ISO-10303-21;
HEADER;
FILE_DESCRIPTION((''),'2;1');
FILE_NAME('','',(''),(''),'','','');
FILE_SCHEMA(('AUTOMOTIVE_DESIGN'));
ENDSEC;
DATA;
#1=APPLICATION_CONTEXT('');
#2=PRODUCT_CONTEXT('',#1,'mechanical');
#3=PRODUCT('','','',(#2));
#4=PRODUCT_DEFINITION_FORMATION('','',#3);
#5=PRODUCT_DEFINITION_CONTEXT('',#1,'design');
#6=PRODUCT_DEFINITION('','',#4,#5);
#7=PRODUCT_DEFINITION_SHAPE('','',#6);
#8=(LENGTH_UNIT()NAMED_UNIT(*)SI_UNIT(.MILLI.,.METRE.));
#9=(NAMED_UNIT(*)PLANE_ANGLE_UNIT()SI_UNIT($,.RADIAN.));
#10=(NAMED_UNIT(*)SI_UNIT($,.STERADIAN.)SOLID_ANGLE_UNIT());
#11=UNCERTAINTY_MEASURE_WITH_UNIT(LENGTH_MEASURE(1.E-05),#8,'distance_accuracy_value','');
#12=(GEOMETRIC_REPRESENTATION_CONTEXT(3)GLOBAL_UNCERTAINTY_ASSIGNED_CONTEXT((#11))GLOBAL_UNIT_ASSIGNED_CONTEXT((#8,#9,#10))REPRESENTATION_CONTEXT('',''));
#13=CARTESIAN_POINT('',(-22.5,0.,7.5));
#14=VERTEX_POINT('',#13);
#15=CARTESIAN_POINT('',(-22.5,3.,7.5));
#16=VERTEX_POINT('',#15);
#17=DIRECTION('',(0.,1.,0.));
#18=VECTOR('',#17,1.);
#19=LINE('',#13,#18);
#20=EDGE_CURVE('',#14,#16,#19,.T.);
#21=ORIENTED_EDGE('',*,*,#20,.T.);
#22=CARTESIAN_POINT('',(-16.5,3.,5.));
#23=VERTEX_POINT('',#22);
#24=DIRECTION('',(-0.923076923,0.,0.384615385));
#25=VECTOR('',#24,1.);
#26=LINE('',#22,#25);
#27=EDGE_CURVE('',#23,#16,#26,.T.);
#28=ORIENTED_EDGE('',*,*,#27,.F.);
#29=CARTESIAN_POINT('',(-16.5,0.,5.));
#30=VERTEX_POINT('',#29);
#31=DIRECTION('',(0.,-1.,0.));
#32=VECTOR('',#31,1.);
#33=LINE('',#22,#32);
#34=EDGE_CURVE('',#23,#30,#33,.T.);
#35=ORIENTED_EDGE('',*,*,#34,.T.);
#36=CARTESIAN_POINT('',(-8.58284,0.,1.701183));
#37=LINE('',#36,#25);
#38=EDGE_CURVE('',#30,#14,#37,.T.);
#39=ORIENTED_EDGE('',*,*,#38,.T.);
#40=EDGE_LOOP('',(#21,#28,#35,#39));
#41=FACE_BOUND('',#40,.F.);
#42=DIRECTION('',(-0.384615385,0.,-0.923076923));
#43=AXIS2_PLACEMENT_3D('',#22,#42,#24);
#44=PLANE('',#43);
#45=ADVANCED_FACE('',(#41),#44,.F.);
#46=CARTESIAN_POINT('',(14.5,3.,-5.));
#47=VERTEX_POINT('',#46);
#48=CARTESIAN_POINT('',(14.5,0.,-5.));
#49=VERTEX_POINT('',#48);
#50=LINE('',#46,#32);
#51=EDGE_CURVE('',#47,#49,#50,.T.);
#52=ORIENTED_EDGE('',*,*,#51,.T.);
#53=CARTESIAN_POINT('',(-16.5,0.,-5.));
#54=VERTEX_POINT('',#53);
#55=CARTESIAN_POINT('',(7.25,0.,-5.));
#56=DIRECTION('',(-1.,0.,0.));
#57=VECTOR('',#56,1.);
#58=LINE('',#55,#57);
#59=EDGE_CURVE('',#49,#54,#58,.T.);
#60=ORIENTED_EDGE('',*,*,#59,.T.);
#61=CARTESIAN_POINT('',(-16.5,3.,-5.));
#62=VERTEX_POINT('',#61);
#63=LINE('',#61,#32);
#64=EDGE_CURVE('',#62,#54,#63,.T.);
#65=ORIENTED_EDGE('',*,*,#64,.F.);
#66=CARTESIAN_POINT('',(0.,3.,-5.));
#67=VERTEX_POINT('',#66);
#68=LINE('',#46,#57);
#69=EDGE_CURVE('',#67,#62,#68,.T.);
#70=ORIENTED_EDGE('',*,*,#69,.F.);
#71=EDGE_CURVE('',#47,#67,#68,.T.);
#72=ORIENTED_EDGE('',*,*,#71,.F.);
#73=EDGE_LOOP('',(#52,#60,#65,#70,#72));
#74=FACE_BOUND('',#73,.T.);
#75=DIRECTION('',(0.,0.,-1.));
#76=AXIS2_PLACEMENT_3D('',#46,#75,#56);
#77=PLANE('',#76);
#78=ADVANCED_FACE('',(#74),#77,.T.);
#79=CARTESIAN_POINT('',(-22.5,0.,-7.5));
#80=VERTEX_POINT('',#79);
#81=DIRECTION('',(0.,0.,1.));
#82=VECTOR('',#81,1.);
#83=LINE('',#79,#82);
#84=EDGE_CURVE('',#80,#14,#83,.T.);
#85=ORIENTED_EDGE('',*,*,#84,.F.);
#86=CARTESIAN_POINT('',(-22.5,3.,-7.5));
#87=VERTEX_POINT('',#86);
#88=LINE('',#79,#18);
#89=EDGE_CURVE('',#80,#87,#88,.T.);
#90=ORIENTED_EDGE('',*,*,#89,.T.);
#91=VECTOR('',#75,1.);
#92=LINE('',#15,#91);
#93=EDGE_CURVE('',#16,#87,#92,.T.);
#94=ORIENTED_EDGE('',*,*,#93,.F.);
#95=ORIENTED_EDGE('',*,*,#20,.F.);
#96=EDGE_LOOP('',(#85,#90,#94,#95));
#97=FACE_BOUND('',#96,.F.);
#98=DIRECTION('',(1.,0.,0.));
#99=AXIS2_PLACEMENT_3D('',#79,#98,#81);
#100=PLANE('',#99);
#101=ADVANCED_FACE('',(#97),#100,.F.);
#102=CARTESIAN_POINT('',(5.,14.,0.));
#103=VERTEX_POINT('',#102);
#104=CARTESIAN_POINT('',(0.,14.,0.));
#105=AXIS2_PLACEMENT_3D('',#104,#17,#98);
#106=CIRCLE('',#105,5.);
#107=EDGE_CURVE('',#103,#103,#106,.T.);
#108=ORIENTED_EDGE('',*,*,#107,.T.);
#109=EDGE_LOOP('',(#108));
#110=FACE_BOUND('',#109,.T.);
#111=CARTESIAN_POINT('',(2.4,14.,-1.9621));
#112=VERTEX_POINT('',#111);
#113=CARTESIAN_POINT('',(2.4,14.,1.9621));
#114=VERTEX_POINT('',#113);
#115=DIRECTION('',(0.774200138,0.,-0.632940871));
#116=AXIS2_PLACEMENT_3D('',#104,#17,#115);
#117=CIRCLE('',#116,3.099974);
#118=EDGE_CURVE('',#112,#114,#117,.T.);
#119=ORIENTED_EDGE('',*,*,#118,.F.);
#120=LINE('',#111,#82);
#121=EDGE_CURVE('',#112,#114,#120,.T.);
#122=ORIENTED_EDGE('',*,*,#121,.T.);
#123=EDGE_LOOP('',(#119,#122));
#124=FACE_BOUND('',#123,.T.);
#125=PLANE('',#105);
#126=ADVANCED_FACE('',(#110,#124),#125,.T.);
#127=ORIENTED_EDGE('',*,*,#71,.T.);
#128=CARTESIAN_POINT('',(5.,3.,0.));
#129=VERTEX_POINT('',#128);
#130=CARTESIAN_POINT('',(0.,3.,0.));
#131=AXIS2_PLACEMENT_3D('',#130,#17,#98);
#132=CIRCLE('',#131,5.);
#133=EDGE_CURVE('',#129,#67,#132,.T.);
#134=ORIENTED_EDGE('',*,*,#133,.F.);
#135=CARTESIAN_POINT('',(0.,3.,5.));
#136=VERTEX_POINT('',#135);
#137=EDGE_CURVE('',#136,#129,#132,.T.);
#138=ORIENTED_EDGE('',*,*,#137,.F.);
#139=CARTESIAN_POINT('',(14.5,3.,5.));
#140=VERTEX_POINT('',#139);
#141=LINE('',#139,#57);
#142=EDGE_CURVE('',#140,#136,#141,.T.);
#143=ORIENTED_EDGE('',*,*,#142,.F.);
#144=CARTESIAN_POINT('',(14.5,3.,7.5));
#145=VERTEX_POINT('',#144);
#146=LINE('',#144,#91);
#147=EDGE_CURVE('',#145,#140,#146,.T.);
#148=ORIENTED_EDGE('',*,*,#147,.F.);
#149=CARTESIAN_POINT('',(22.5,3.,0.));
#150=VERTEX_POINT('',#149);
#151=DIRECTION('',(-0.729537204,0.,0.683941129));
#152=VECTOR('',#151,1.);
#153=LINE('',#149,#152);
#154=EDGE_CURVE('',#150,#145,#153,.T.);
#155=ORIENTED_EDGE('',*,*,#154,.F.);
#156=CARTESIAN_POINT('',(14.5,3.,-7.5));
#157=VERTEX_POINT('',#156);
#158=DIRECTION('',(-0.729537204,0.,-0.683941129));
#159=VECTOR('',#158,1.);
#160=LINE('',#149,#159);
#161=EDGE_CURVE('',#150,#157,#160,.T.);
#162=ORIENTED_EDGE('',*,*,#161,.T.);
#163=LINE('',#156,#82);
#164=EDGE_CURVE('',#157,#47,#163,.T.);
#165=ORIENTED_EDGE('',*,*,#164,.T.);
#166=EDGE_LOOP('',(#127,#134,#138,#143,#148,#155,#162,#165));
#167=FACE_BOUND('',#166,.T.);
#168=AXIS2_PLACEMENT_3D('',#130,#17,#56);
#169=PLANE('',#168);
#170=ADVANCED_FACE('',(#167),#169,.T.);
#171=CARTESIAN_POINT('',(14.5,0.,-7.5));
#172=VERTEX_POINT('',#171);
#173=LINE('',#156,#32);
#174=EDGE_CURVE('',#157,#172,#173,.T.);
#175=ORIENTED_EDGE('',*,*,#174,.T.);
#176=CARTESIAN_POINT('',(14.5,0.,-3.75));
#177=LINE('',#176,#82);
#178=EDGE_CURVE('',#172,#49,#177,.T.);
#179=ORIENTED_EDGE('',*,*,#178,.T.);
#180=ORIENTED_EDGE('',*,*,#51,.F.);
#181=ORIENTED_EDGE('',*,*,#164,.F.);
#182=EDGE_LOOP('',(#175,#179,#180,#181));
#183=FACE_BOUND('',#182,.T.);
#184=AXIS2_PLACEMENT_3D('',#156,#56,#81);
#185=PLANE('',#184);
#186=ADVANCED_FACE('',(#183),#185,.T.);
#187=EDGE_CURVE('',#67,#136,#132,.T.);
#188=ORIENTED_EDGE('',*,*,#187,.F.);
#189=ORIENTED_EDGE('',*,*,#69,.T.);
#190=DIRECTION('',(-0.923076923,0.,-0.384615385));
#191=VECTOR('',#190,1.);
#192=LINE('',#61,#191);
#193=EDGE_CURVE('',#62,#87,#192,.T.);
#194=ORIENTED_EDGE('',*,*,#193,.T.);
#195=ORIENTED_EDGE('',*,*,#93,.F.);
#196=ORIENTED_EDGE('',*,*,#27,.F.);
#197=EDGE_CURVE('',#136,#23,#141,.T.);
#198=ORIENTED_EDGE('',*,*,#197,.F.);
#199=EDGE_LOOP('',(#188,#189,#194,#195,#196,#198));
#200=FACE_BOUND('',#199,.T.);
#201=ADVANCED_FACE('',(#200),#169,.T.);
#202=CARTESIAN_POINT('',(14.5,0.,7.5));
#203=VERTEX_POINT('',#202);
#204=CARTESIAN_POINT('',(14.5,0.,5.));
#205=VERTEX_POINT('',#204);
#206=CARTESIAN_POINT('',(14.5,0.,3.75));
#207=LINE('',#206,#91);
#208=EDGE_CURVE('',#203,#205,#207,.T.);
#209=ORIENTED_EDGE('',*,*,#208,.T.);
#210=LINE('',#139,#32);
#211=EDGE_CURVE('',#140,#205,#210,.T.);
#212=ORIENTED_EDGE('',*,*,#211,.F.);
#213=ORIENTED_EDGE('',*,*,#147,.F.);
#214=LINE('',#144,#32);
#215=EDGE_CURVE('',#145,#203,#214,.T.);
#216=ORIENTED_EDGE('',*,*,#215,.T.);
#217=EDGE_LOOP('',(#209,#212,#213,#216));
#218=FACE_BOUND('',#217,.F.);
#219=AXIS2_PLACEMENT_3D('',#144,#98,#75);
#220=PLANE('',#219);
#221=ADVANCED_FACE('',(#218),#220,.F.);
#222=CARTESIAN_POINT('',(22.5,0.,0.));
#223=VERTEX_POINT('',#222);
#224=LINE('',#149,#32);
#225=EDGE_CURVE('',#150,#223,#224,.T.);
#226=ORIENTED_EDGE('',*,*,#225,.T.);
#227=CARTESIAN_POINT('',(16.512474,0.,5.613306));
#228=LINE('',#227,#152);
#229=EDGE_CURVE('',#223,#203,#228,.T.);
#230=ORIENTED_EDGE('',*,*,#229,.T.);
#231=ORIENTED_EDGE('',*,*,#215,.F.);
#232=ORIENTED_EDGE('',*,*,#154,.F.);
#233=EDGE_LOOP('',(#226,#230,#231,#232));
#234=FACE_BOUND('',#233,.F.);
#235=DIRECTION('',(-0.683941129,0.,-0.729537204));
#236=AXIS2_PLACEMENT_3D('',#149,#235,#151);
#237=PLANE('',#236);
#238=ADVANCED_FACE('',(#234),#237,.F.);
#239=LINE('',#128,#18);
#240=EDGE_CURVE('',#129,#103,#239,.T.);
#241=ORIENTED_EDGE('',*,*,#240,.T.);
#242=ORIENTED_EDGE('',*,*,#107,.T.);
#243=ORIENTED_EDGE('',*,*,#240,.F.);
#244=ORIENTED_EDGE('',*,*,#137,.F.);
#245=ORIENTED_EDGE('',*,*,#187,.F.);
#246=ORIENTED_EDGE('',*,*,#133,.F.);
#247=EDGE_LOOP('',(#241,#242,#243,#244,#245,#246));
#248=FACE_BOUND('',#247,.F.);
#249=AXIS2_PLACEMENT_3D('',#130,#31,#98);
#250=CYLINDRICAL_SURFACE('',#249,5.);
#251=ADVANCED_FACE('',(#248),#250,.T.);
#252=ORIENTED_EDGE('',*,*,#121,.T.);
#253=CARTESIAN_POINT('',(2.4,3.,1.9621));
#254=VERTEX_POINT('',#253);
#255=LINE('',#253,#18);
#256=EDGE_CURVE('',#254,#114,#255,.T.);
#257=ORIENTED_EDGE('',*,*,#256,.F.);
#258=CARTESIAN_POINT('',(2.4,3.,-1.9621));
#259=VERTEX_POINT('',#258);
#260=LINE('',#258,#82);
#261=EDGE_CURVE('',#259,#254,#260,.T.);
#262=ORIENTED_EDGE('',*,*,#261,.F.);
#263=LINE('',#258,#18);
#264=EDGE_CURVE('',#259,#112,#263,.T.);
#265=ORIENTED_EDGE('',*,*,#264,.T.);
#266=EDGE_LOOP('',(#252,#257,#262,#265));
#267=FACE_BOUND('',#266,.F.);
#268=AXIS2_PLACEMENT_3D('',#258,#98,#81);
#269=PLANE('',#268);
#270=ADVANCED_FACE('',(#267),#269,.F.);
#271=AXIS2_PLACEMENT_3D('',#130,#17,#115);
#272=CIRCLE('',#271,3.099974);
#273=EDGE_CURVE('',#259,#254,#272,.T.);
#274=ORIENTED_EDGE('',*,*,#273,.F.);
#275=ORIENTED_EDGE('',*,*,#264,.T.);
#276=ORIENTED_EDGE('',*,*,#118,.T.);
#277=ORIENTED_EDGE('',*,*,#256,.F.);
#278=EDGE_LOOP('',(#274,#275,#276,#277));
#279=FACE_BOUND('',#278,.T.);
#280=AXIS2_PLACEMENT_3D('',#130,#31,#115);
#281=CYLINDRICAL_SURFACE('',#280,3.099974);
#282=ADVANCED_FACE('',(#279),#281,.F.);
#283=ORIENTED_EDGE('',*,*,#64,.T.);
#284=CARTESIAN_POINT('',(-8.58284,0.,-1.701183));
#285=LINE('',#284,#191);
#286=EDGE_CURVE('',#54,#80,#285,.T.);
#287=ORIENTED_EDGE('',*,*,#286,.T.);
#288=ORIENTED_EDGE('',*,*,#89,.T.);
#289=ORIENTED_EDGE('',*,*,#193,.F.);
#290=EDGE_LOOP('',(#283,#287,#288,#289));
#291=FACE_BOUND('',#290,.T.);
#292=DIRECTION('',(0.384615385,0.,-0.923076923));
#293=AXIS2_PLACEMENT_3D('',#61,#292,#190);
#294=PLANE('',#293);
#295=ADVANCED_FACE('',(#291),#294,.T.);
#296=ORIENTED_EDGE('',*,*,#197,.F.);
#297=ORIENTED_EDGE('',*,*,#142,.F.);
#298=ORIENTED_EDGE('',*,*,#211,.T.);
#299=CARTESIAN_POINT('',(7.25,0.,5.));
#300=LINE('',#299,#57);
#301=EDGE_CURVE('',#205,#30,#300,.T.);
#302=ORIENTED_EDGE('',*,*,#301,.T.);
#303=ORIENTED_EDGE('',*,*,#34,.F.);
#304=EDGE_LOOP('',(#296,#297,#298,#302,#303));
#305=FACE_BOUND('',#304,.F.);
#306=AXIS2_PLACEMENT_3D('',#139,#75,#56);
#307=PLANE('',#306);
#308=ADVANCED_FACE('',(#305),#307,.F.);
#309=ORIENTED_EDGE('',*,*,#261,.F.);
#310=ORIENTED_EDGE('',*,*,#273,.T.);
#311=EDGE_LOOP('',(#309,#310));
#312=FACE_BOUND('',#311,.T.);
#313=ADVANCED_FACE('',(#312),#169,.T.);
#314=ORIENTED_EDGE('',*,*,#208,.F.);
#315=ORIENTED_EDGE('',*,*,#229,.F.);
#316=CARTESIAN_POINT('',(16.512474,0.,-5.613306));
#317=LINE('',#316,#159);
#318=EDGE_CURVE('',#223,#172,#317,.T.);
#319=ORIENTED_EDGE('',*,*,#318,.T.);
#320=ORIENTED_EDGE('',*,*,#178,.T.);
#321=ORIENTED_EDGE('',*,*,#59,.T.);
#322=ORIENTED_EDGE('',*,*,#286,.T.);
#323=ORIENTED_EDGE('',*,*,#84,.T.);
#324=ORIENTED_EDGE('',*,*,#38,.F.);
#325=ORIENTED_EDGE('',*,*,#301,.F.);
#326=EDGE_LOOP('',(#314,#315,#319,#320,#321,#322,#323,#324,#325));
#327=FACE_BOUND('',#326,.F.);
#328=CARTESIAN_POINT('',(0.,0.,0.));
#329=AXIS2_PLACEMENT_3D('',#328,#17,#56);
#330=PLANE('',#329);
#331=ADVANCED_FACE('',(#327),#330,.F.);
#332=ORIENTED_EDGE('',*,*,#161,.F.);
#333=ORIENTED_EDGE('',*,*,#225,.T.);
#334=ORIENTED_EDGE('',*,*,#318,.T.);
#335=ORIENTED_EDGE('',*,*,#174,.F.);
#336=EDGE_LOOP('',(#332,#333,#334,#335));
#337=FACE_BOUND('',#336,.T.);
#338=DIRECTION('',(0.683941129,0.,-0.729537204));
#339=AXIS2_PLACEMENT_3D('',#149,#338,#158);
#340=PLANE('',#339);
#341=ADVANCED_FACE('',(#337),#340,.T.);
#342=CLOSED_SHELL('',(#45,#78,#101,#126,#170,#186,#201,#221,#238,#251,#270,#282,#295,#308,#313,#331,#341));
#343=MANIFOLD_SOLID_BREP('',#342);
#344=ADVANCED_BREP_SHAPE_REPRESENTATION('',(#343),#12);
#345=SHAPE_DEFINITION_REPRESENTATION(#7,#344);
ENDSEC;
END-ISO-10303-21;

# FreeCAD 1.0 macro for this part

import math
import FreeCAD as App
import Part
import Sketcher
from FreeCAD import Vector
Q = App.Units.Quantity

doc = App.newDocument("Part")
body = doc.addObject("PartDesign::Body", "Body")

# Sketch on XZ plane
sketch1 = body.newObject("Sketcher::SketchObject", "Sketch")
sketch1.AttachmentSupport = (doc.getObject("XZ_Plane"), [""])
sketch1.MapMode = "FlatFace"
sketch1.addGeometry(Part.LineSegment(Vector(-22.5, -7.5, 0), Vector(-22.5, 7.5, 0)), False)
sketch1.addGeometry(Part.LineSegment(Vector(-22.5, 7.5, 0), Vector(22.5, 7.5, 0)), False)
sketch1.addGeometry(Part.LineSegment(Vector(22.5, 7.5, 0), Vector(22.5, -7.5, 0)), False)
sketch1.addGeometry(Part.LineSegment(Vector(22.5, -7.5, 0), Vector(-22.5, -7.5, 0)), False)
sketch1.addConstraint(Sketcher.Constraint("Coincident", 0, 2, 1, 1))
sketch1.addConstraint(Sketcher.Constraint("Coincident", 1, 2, 2, 1))
sketch1.addConstraint(Sketcher.Constraint("Coincident", 2, 2, 3, 1))
sketch1.addConstraint(Sketcher.Constraint("Coincident", 3, 2, 0, 1))
sketch1.addConstraint(Sketcher.Constraint("Vertical", 0))
sketch1.addConstraint(Sketcher.Constraint("Horizontal", 1))
sketch1.addConstraint(Sketcher.Constraint("Vertical", 2))
sketch1.addConstraint(Sketcher.Constraint("Horizontal", 3))
sketch1.addConstraint(Sketcher.Constraint("Symmetric", 0, 2, 2, 2, -1, 1))
sketch1.addConstraint(Sketcher.Constraint("DistanceX", 1, 1, 1, 2, Q("45 mm")))
sketch1.addConstraint(Sketcher.Constraint("DistanceY", 0, 1, 0, 2, Q("15 mm")))
pad1 = body.newObject("PartDesign::Pad", "Pad")
pad1.Profile = sketch1
pad1.Length = 3
pad1.Reversed = True

# Sketch on XZ plane
sketch2 = body.newObject("Sketcher::SketchObject", "Sketch001")
sketch2.AttachmentSupport = (doc.getObject("XZ_Plane"), [""])
sketch2.MapMode = "FlatFace"
sketch2.AttachmentOffset = App.Placement(Vector(0, 0, -3), App.Rotation())
sketch2.addGeometry(Part.Circle(Vector(0, 0, 0), Vector(0, 0, 1), 5), False)
sketch2.addGeometry(Part.ArcOfCircle(Part.Circle(Vector(0, 0, 0), Vector(0, 0, 1), 3.099974), math.radians(39.267429), math.radians(320.732571)), False)
sketch2.addGeometry(Part.LineSegment(Vector(2.4, -1.9621, 0), Vector(2.4, 1.9621, 0)), False)
sketch2.addConstraint(Sketcher.Constraint("Coincident", 1, 1, 2, 2))
sketch2.addConstraint(Sketcher.Constraint("Coincident", 2, 1, 1, 2))
sketch2.addConstraint(Sketcher.Constraint("Vertical", 2))
sketch2.addConstraint(Sketcher.Constraint("Coincident", 0, 3, -1, 1))
sketch2.addConstraint(Sketcher.Constraint("Coincident", 1, 3, -1, 1))
sketch2.addConstraint(Sketcher.Constraint("Diameter", 0, Q("10 mm")))
sketch2.addConstraint(Sketcher.Constraint("Radius", 1, Q("3.1 mm")))
sketch2.addConstraint(Sketcher.Constraint("DistanceX", -1, 1, 1, 1, Q("2.4 mm")))
pad2 = body.newObject("PartDesign::Pad", "Pad001")
pad2.Profile = sketch2
pad2.Length = 11
pad2.Reversed = True

# Sketch on XZ plane
sketch3 = body.newObject("Sketcher::SketchObject", "Sketch002")
sketch3.AttachmentSupport = (doc.getObject("XZ_Plane"), [""])
sketch3.MapMode = "FlatFace"
sketch3.AttachmentOffset = App.Placement(Vector(0, 0, -3), App.Rotation())
sketch3.addGeometry(Part.LineSegment(Vector(14.5, 7.5, 0), Vector(22.5, 7.5, 0)), False)
sketch3.addGeometry(Part.LineSegment(Vector(22.5, 7.5, 0), Vector(22.5, 0, 0)), False)
sketch3.addGeometry(Part.LineSegment(Vector(22.5, 0, 0), Vector(14.5, 7.5, 0)), False)
sketch3.addGeometry(Part.LineSegment(Vector(14.5, -7.5, 0), Vector(22.5, 0, 0)), False)
sketch3.addGeometry(Part.LineSegment(Vector(22.5, 0, 0), Vector(22.5, -7.5, 0)), False)
sketch3.addGeometry(Part.LineSegment(Vector(22.5, -7.5, 0), Vector(14.5, -7.5, 0)), False)
sketch3.addGeometry(Part.LineSegment(Vector(-22.5, 7.5, 0), Vector(14.5, 7.5, 0)), False)
sketch3.addGeometry(Part.LineSegment(Vector(14.5, 7.5, 0), Vector(14.5, 5, 0)), False)
sketch3.addGeometry(Part.LineSegment(Vector(14.5, 5, 0), Vector(-16.5, 5, 0)), False)
sketch3.addGeometry(Part.LineSegment(Vector(-16.5, 5, 0), Vector(-22.5, 7.5, 0)), False)
sketch3.addGeometry(Part.LineSegment(Vector(14.5, -5, 0), Vector(14.5, -7.5, 0)), False)
sketch3.addGeometry(Part.LineSegment(Vector(14.5, -7.5, 0), Vector(-22.5, -7.5, 0)), False)
sketch3.addGeometry(Part.LineSegment(Vector(-22.5, -7.5, 0), Vector(-16.5, -5, 0)), False)
sketch3.addGeometry(Part.LineSegment(Vector(-16.5, -5, 0), Vector(14.5, -5, 0)), False)
sketch3.addConstraint(Sketcher.Constraint("Coincident", 0, 2, 1, 1))
sketch3.addConstraint(Sketcher.Constraint("Coincident", 1, 2, 2, 1))
sketch3.addConstraint(Sketcher.Constraint("Coincident", 2, 2, 0, 1))
sketch3.addConstraint(Sketcher.Constraint("Coincident", 3, 2, 4, 1))
sketch3.addConstraint(Sketcher.Constraint("Coincident", 4, 2, 5, 1))
sketch3.addConstraint(Sketcher.Constraint("Coincident", 5, 2, 3, 1))
sketch3.addConstraint(Sketcher.Constraint("Coincident", 6, 2, 7, 1))
sketch3.addConstraint(Sketcher.Constraint("Coincident", 7, 2, 8, 1))
sketch3.addConstraint(Sketcher.Constraint("Coincident", 8, 2, 9, 1))
sketch3.addConstraint(Sketcher.Constraint("Coincident", 9, 2, 6, 1))
sketch3.addConstraint(Sketcher.Constraint("Coincident", 10, 2, 11, 1))
sketch3.addConstraint(Sketcher.Constraint("Coincident", 11, 2, 12, 1))
sketch3.addConstraint(Sketcher.Constraint("Coincident", 12, 2, 13, 1))
sketch3.addConstraint(Sketcher.Constraint("Coincident", 13, 2, 10, 1))
sketch3.addConstraint(Sketcher.Constraint("Horizontal", 0))
sketch3.addConstraint(Sketcher.Constraint("Vertical", 1))
sketch3.addConstraint(Sketcher.Constraint("Vertical", 4))
sketch3.addConstraint(Sketcher.Constraint("Horizontal", 5))
sketch3.addConstraint(Sketcher.Constraint("Horizontal", 6))
sketch3.addConstraint(Sketcher.Constraint("Vertical", 7))
sketch3.addConstraint(Sketcher.Constraint("Horizontal", 8))
sketch3.addConstraint(Sketcher.Constraint("Vertical", 10))
sketch3.addConstraint(Sketcher.Constraint("Horizontal", 11))
sketch3.addConstraint(Sketcher.Constraint("Horizontal", 13))
sketch3.addConstraint(Sketcher.Constraint("Coincident", 3, 2, 1, 2))
sketch3.addConstraint(Sketcher.Constraint("Coincident", 6, 2, 2, 2))
sketch3.addConstraint(Sketcher.Constraint("Coincident", 10, 2, 5, 2))
sketch3.addConstraint(Sketcher.Constraint("Symmetric", 4, 2, 9, 2, -1, 1))
sketch3.addConstraint(Sketcher.Constraint("Symmetric", 8, 2, 12, 2, -1))
sketch3.addConstraint(Sketcher.Constraint("PointOnObject", 1, 2, -1))
sketch3.addConstraint(Sketcher.Constraint("Vertical", 2, 2, 5, 2))
sketch3.addConstraint(Sketcher.Constraint("Vertical", 9, 2, 11, 2))
sketch3.addConstraint(Sketcher.Constraint("DistanceX", 0, 1, 0, 2, Q("8 mm")))
sketch3.addConstraint(Sketcher.Constraint("DistanceY", 7, 2, 7, 1, Q("2.5 mm")))
sketch3.addConstraint(Sketcher.Constraint("DistanceX", 9, 2, 8, 2, Q("6 mm")))
sketch3.addConstraint(Sketcher.Constraint("DistanceX", 6, 1, 6, 2, Q("37 mm")))
sketch3.addConstraint(Sketcher.Constraint("DistanceY", 1, 2, 1, 1, Q("7.5 mm")))
pocket1 = body.newObject("PartDesign::Pocket", "Pocket")
pocket1.Profile = sketch3
pocket1.Type = "ThroughAll"
pocket1.Reversed = True

doc.recompute()
